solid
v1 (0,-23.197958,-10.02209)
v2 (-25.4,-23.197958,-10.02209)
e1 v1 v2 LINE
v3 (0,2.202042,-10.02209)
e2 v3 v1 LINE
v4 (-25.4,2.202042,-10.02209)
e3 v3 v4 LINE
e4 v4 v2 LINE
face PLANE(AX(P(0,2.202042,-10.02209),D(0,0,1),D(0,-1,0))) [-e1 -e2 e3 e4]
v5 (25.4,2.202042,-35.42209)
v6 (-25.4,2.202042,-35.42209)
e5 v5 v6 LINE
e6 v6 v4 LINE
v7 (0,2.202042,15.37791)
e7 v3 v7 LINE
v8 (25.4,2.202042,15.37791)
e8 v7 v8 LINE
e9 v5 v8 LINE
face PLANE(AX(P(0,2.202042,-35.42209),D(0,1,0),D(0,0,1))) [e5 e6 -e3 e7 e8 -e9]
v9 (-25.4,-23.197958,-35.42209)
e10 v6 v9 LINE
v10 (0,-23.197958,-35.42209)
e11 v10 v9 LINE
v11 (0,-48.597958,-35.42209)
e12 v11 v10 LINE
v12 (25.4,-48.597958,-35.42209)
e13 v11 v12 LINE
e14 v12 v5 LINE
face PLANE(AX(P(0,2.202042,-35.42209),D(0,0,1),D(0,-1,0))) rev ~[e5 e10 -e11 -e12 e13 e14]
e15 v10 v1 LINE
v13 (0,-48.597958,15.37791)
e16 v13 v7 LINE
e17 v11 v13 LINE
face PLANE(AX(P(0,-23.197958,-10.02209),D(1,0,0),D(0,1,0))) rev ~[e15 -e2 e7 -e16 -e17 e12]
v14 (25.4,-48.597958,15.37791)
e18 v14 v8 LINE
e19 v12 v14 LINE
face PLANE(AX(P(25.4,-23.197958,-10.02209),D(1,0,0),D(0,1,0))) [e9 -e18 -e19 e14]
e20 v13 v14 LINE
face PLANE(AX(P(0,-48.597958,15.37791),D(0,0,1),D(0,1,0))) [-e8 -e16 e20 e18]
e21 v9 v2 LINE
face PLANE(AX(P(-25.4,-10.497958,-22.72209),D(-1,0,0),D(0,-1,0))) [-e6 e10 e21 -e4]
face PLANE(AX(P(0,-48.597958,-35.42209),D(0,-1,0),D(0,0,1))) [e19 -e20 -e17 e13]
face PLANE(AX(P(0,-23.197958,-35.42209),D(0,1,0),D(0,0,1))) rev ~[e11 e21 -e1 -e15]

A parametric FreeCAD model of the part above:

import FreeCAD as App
import Part
import Sketcher

V = App.Vector
Q = App.Units.Quantity

doc = App.newDocument("Part")
body = doc.addObject("PartDesign::Body", "Body")

sketch1 = body.newObject("Sketcher::SketchObject", "Sketch")
sketch1.AttachmentSupport = (doc.getObject("YZ_Plane"), [""])
sketch1.MapMode = "FlatFace"
sketch1.addGeometry(Part.LineSegment(V(-48.597958, 15.37791, 0), V(-48.597958, -35.42209, 0)), False)
sketch1.addGeometry(Part.LineSegment(V(-48.597958, -35.42209, 0), V(2.202042, -35.42209, 0)), False)
sketch1.addGeometry(Part.LineSegment(V(2.202042, -35.42209, 0), V(2.202042, 15.37791, 0)), False)
sketch1.addGeometry(Part.LineSegment(V(2.202042, 15.37791, 0), V(-48.597958, 15.37791, 0)), False)
sketch1.addConstraint(Sketcher.Constraint("Coincident", 0, 2, 1, 1))
sketch1.addConstraint(Sketcher.Constraint("Coincident", 1, 2, 2, 1))
sketch1.addConstraint(Sketcher.Constraint("Coincident", 2, 2, 3, 1))
sketch1.addConstraint(Sketcher.Constraint("Coincident", 3, 2, 0, 1))
sketch1.addConstraint(Sketcher.Constraint("Vertical", 0))
sketch1.addConstraint(Sketcher.Constraint("Horizontal", 1))
sketch1.addConstraint(Sketcher.Constraint("Vertical", 2))
sketch1.addConstraint(Sketcher.Constraint("Horizontal", 3))
sketch1.addConstraint(Sketcher.Constraint("Equal", 3, 0))
sketch1.addConstraint(Sketcher.Constraint("DistanceX", 1, 1, 1, 2, Q("2 in")))
sketch1.addConstraint(Sketcher.Constraint("DistanceY", 0, 2, -1, 1, Q("35.42209 mm")))
sketch1.addConstraint(Sketcher.Constraint("DistanceX", -1, 1, 1, 2, Q("2.202042 mm")))
pad1 = body.newObject("PartDesign::Pad", "Pad")
pad1.Profile = sketch1
pad1.Length = Q("1 in")

sketch2 = body.newObject("Sketcher::SketchObject", "Sketch001")
sketch2.AttachmentSupport = (doc.getObject("YZ_Plane"), [""])
sketch2.MapMode = "FlatFace"
sketch2.addGeometry(Part.LineSegment(V(2.202042, -10.02209, 0), V(2.202042, -35.42209, 0)), False)
sketch2.addGeometry(Part.LineSegment(V(2.202042, -35.42209, 0), V(-23.197958, -35.42209, 0)), False)
sketch2.addGeometry(Part.LineSegment(V(-23.197958, -35.42209, 0), V(-23.197958, -10.02209, 0)), False)
sketch2.addGeometry(Part.LineSegment(V(-23.197958, -10.02209, 0), V(2.202042, -10.02209, 0)), False)
sketch2.addConstraint(Sketcher.Constraint("Coincident", 0, 2, 1, 1))
sketch2.addConstraint(Sketcher.Constraint("Coincident", 1, 2, 2, 1))
sketch2.addConstraint(Sketcher.Constraint("Coincident", 2, 2, 3, 1))
sketch2.addConstraint(Sketcher.Constraint("Coincident", 3, 2, 0, 1))
sketch2.addConstraint(Sketcher.Constraint("Vertical", 0))
sketch2.addConstraint(Sketcher.Constraint("Horizontal", 1))
sketch2.addConstraint(Sketcher.Constraint("Vertical", 2))
sketch2.addConstraint(Sketcher.Constraint("Horizontal", 3))
sketch2.addConstraint(Sketcher.Constraint("Equal", 3, 0))
sketch2.addConstraint(Sketcher.Constraint("DistanceX", 1, 2, 1, 1, Q("1 in")))
sketch2.addConstraint(Sketcher.Constraint("DistanceX", -1, 1, 0, 2, Q("2.202042 mm")))
sketch2.addConstraint(Sketcher.Constraint("DistanceY", 0, 2, -1, 1, Q("35.42209 mm")))
pad2 = body.newObject("PartDesign::Pad", "Pad001")
pad2.Profile = sketch2
pad2.Length = Q("1 in")
pad2.Reversed = True

doc.recompute()
